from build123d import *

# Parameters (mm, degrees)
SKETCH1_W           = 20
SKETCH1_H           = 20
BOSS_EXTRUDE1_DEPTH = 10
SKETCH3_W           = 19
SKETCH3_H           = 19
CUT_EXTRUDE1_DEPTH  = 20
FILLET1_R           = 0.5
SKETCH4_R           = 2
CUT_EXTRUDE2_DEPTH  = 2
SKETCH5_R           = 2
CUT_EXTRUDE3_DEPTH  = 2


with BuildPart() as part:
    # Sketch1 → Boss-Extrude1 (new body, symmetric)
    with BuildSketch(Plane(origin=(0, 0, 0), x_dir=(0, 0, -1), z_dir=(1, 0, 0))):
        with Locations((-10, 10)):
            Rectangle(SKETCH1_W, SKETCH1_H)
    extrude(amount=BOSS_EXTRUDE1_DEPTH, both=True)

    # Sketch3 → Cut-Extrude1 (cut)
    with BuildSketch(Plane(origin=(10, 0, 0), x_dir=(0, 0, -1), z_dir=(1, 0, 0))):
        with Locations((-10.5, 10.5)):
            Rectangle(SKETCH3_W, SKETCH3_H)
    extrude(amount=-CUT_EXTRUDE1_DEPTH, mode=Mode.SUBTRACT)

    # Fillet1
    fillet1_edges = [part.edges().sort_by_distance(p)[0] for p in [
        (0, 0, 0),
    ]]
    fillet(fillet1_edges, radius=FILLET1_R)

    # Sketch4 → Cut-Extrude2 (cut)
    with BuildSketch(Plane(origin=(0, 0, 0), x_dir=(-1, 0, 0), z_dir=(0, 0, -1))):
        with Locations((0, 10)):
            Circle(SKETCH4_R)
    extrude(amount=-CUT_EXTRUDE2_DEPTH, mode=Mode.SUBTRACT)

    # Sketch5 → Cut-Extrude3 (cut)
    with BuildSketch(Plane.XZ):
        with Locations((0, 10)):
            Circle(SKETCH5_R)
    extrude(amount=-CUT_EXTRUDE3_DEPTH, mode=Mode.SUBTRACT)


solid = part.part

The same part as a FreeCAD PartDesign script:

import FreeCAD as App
import Part
import Sketcher


def edges_at(feature, points):
    """Names of the edges that pass closest to the given points."""
    edges = feature.Shape.Edges
    near = lambda p: min(range(len(edges)), key=lambda i: edges[i].distToShape(Part.Vertex(*p))[0])
    return sorted({f"Edge{near(p) + 1}" for p in points})


def add_polygon(sketch, points):
    """Adds a closed chain of lines whose ends are joined by coincident constraints."""
    first, n = sketch.GeometryCount, len(points)
    for a, b in zip(points, points[1:] + points[:1]):
        sketch.addGeometry(Part.LineSegment(App.Vector(*a, 0), App.Vector(*b, 0)), False)
    for i in range(n):
        sketch.addConstraint(Sketcher.Constraint("Coincident", first + i, 2, first + (i + 1) % n, 1))

doc = App.newDocument("Part")
params = doc.addObject("Spreadsheet::Sheet", "Params")
for row, (alias, value) in enumerate([
    ("sketch1_width", "20 mm"),
    ("pad1_length", "20 mm"),
    ("sketch2_width", "19 mm"),
    ("pocket1_length", "20 mm"),
    ("fillet_radius", "0.5 mm"),
    ("sketch3_diameter", "4 mm"),
    ("pocket2_length", "2 mm"),
    ("sketch4_diameter", "4 mm"),
    ("pocket3_length", "2 mm"),
], start=1):
    params.set(f"A{row}", alias)
    params.set(f"B{row}", "=" + value)
    params.setAlias(f"B{row}", alias)

body = doc.addObject("PartDesign::Body", "Body")

# Sketch on YZ plane
sketch1 = body.newObject("Sketcher::SketchObject", "Sketch")
sketch1.AttachmentSupport = (doc.getObject("YZ_Plane"), [""])
sketch1.MapMode = "FlatFace"
add_polygon(sketch1, [(20, 20), (0, 20), (0, 0), (20, 0)])  # lines 0-3
sketch1.addConstraint([
    Sketcher.Constraint("Horizontal", 0),
    Sketcher.Constraint("Vertical", 1),
    Sketcher.Constraint("Horizontal", 2),
    Sketcher.Constraint("Vertical", 3),
    Sketcher.Constraint("Coincident", 1, 2, -1, 1),
    Sketcher.Constraint("Equal", 2, 1),
    Sketcher.Constraint("DistanceX", 0, 2, 0, 1, 20.0),
])
sketch1.setExpression("Constraints[10]", "Params.sketch1_width")
pad1 = body.newObject("PartDesign::Pad", "Pad")
pad1.Profile = sketch1
pad1.setExpression("Length", "Params.pad1_length")
pad1.Midplane = True

# Sketch on YZ plane
sketch2 = body.newObject("Sketcher::SketchObject", "Sketch001")
sketch2.AttachmentSupport = (doc.getObject("YZ_Plane"), [""])
sketch2.MapMode = "FlatFace"
sketch2.AttachmentOffset = App.Placement(App.Vector(0, 0, 10), App.Rotation())
add_polygon(sketch2, [(20, 20), (1, 20), (1, 1), (20, 1)])  # lines 0-3
sketch2.addConstraint([
    Sketcher.Constraint("Horizontal", 0),
    Sketcher.Constraint("Vertical", 1),
    Sketcher.Constraint("Horizontal", 2),
    Sketcher.Constraint("Vertical", 3),
    Sketcher.Constraint("Equal", 2, 1),
    Sketcher.Constraint("DistanceX", 0, 2, 0, 1, 19.0),
    Sketcher.Constraint("DistanceX", -1, 1, 0, 2, 1.0),
    Sketcher.Constraint("DistanceY", -1, 1, 0, 2, 20.0),
])
sketch2.setExpression("Constraints[9]", "Params.sketch2_width")
pocket1 = body.newObject("PartDesign::Pocket", "Pocket")
pocket1.Profile = sketch2
pocket1.setExpression("Length", "Params.pocket1_length")
doc.recompute()

fillet = body.newObject("PartDesign::Fillet", "Fillet")
fillet.Base = (pocket1, edges_at(pocket1, [(0, 0, 0)]))
fillet.setExpression("Radius", "Params.fillet_radius")

# Sketch on XY plane
sketch3 = body.newObject("Sketcher::SketchObject", "Sketch002")
sketch3.AttachmentSupport = (doc.getObject("XY_Plane"), [""])
sketch3.MapMode = "FlatFace"
sketch3.addGeometry(Part.Circle(App.Vector(0, 10, 0), App.Vector(0, 0, 1), 2), False)
sketch3.addConstraint([
    Sketcher.Constraint("PointOnObject", 0, 3, -2),
    Sketcher.Constraint("Diameter", 0, 4.0),
    Sketcher.Constraint("DistanceY", -1, 1, 0, 3, 10.0),
])
sketch3.setExpression("Constraints[1]", "Params.sketch3_diameter")
pocket2 = body.newObject("PartDesign::Pocket", "Pocket001")
pocket2.Profile = sketch3
pocket2.setExpression("Length", "Params.pocket2_length")
pocket2.Reversed = True

# Sketch on XZ plane
sketch4 = body.newObject("Sketcher::SketchObject", "Sketch003")
sketch4.AttachmentSupport = (doc.getObject("XZ_Plane"), [""])
sketch4.MapMode = "FlatFace"
sketch4.addGeometry(Part.Circle(App.Vector(0, 10, 0), App.Vector(0, 0, 1), 2), False)
sketch4.addConstraint([
    Sketcher.Constraint("PointOnObject", 0, 3, -2),
    Sketcher.Constraint("Diameter", 0, 4.0),
    Sketcher.Constraint("DistanceY", -1, 1, 0, 3, 10.0),
])
sketch4.setExpression("Constraints[1]", "Params.sketch4_diameter")
pocket3 = body.newObject("PartDesign::Pocket", "Pocket002")
pocket3.Profile = sketch4
pocket3.setExpression("Length", "Params.pocket3_length")

doc.recompute()
